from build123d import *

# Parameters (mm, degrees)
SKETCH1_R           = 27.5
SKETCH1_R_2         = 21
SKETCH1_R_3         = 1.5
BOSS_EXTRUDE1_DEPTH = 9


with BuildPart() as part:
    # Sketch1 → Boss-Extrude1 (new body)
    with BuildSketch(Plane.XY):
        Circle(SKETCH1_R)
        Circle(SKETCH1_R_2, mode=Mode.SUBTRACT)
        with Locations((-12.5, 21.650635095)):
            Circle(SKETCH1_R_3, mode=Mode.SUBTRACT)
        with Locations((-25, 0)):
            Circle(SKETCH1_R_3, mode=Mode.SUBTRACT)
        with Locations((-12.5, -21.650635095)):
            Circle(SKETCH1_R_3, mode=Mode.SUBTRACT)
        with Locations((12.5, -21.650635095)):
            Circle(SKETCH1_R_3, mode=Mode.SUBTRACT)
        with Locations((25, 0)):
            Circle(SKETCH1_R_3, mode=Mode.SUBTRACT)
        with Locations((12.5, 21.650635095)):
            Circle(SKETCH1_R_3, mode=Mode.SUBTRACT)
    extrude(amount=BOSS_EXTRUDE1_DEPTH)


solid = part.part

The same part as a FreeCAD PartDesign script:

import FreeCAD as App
import Part
import Sketcher

V = App.Vector
Q = App.Units.Quantity

doc = App.newDocument("Part")
body = doc.addObject("PartDesign::Body", "Body")

sketch1 = body.newObject("Sketcher::SketchObject", "Sketch")
sketch1.AttachmentSupport = (doc.getObject("XY_Plane"), [""])
sketch1.MapMode = "FlatFace"
sketch1.addGeometry([
    Part.Circle(V(0, 0, 0), V(0, 0, 1), 27.5),
    Part.Circle(V(-12.5, -21.7, 0), V(0, 0, 1), 1.5),
    Part.Circle(V(12.5, -21.7, 0), V(0, 0, 1), 1.5),
    Part.Circle(V(-25, 0, 0), V(0, 0, 1), 1.5),
    Part.Circle(V(-12.5, 21.7, 0), V(0, 0, 1), 1.5),
    Part.Circle(V(0, 0, 0), V(0, 0, 1), 21),
    Part.Circle(V(25, 0, 0), V(0, 0, 1), 1.5),
    Part.Circle(V(12.5, 21.7, 0), V(0, 0, 1), 1.5),
], False)
sketch1.addConstraint([
    Sketcher.Constraint("Coincident", 0, 3, -1, 1),
    Sketcher.Constraint("Coincident", 5, 3, -1, 1),
    Sketcher.Constraint("Equal", 1, 2),
    Sketcher.Constraint("Equal", 2, 3),
    Sketcher.Constraint("Equal", 3, 4),
    Sketcher.Constraint("Equal", 4, 6),
    Sketcher.Constraint("Equal", 6, 7),
    Sketcher.Constraint("Symmetric", 2, 3, 4, 3, -1, 1),
    Sketcher.Constraint("Symmetric", 3, 3, 6, 3, -1, 1),
    Sketcher.Constraint("Symmetric", 1, 3, 7, 3, -1, 1),
    Sketcher.Constraint("Symmetric", 1, 3, 2, 3, -2),
    Sketcher.Constraint("PointOnObject", 3, 3, -1),
    Sketcher.Constraint("Diameter", 0, Q("55 mm")),
    Sketcher.Constraint("Diameter", 1, Q("3 mm")),
    Sketcher.Constraint("Diameter", 5, Q("42 mm")),
    Sketcher.Constraint("DistanceX", 3, 3, -1, 1, Q("25 mm")),
    Sketcher.Constraint("DistanceX", 1, 3, 2, 3, Q("25 mm")),
    Sketcher.Constraint("DistanceY", 1, 3, 4, 3, Q("43.30127 mm")),
])
pad1 = body.newObject("PartDesign::Pad", "Pad")
pad1.Profile = sketch1
pad1.Length = 9

doc.recompute()
